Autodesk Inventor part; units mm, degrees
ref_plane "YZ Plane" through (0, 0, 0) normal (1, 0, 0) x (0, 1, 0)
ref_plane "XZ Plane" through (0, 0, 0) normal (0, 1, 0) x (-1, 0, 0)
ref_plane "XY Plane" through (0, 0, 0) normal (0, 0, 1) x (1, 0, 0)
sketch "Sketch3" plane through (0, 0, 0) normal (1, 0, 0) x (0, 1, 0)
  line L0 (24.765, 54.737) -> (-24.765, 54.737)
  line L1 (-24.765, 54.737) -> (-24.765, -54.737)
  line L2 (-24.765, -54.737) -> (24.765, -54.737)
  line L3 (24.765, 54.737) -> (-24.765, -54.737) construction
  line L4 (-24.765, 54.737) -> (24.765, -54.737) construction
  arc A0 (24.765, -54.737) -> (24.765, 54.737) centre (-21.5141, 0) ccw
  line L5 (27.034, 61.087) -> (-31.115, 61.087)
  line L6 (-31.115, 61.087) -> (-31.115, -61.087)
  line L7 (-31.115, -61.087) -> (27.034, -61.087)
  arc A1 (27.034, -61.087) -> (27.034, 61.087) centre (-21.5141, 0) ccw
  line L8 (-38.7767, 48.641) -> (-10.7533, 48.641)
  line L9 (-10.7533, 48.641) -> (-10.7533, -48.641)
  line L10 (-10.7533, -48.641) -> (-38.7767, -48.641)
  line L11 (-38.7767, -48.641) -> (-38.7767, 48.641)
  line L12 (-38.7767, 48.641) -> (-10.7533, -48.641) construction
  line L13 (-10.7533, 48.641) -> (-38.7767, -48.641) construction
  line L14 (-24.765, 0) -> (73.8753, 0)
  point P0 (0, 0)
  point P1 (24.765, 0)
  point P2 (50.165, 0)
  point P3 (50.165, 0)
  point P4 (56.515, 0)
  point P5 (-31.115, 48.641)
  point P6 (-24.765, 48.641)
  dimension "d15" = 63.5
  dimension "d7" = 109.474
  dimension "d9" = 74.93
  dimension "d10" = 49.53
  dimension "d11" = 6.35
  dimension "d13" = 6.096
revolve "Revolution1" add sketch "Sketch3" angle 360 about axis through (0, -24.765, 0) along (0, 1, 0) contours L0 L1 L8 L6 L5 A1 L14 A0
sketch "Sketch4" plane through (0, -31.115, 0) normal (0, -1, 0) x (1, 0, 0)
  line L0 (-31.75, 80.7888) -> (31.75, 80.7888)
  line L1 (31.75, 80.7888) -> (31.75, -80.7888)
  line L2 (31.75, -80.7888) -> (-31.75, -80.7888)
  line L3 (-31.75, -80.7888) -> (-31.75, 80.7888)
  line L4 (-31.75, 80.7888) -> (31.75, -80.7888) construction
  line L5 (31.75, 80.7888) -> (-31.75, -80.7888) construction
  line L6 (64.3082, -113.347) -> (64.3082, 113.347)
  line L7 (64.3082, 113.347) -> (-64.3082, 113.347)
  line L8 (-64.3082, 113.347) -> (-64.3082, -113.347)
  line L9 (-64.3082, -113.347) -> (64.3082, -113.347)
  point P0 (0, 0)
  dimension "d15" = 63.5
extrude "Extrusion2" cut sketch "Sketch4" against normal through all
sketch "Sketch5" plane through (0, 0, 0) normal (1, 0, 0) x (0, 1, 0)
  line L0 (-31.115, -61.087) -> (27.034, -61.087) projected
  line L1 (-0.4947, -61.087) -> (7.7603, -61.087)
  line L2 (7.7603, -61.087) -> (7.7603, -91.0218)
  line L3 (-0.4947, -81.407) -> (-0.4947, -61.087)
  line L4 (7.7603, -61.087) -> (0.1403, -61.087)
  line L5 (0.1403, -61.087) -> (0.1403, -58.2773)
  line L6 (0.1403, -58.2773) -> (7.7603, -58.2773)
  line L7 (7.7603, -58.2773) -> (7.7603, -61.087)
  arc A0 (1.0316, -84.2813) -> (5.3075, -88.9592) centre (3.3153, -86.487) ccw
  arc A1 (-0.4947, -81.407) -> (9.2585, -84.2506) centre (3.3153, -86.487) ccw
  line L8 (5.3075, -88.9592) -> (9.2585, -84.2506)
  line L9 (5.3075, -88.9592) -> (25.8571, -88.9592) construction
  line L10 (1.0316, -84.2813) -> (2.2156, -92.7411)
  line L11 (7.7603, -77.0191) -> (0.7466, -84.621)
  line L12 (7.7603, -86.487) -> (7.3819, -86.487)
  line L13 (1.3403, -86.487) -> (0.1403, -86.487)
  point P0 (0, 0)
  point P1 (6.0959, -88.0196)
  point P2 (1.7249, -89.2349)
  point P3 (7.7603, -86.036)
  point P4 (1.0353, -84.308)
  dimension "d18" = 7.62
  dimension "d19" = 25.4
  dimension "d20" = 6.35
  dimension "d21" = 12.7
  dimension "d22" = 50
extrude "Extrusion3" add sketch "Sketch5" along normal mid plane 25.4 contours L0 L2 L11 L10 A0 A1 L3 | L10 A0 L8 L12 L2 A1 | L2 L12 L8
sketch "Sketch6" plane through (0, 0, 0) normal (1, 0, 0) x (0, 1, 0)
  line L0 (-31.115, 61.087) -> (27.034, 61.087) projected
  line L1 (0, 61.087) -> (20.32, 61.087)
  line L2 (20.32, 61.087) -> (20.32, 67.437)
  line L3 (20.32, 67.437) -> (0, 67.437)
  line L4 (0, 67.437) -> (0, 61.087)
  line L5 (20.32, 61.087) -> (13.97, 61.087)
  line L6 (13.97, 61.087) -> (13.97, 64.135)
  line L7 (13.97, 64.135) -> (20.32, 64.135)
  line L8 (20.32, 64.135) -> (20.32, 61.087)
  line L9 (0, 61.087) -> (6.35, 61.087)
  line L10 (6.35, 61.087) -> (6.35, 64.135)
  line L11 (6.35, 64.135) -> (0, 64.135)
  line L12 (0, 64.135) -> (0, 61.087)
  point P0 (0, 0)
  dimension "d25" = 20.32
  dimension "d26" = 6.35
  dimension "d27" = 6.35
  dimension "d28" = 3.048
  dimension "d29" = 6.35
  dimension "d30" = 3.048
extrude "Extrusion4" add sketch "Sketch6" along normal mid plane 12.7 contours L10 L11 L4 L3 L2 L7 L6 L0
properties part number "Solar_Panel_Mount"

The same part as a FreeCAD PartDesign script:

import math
import FreeCAD as App
import Part
import Sketcher
from FreeCAD import Vector
Q = App.Units.Quantity

doc = App.newDocument("Part")
params = doc.addObject("Spreadsheet::Sheet", "Params")
for row, (alias, value) in enumerate([
    ("sketch1_width", "1.95 in"),
    ("sketch1_width2", "0.25 in"),
    ("sketch1_height", "0.24 in"),
    ("sketch1_radius", "3.072 in"),
    ("revolution_angle", "360 deg"),
    ("sketch2_width", "2.5 in"),
    ("sketch3_radius", "0.25 in"),
    ("sketch3_radius2", "0.125 in"),
    ("sketch3_height", "0.8 in"),
    ("sketch3_width", "0.325 in"),
    ("pad1_length", "1 in"),
    ("sketch4_width", "0.8 in"),
    ("sketch4_width2", "0.25 in"),
    ("sketch4_height", "0.12 in"),
    ("pad2_length", "0.5 in"),
], start=1):
    params.set(f"A{row}", alias)
    params.set(f"B{row}", "=" + value)
    params.setAlias(f"B{row}", alias)

body = doc.addObject("PartDesign::Body", "Body")
body.AllowCompound = True

# Sketch on YZ plane
sketch1 = body.newObject("Sketcher::SketchObject", "Sketch")
sketch1.AttachmentSupport = (doc.getObject("YZ_Plane"), [""])
sketch1.MapMode = "FlatFace"
sketch1.addGeometry([
    Part.LineSegment(Vector(-25, 55, 0), Vector(25, 55, 0)),  # 0
    Part.ArcOfCircle(Part.Circle(Vector(-22, 0, 0), Vector(0, 0, 1), 72), math.radians(0), math.radians(50)),  # 1
    Part.LineSegment(Vector(50, 0, 0), Vector(57, 0, 0)),  # 2
    Part.ArcOfCircle(Part.Circle(Vector(-22, 0, 0), Vector(0, 0, 1), 78), math.radians(0), math.radians(52)),  # 3
    Part.LineSegment(Vector(27, 61, 0), Vector(-31, 61, 0)),  # 4
    Part.LineSegment(Vector(-31, 61, 0), Vector(-31, 49, 0)),  # 5
    Part.LineSegment(Vector(-31, 49, 0), Vector(-25, 49, 0)),  # 6
    Part.LineSegment(Vector(-25, 49, 0), Vector(-25, 55, 0)),  # 7
], False)
sketch1.addConstraint([
    Sketcher.Constraint("Coincident", 0, 2, 1, 2),
    Sketcher.Constraint("Coincident", 1, 1, 2, 1),
    Sketcher.Constraint("Coincident", 2, 2, 3, 1),
    Sketcher.Constraint("Coincident", 3, 2, 4, 1),
    Sketcher.Constraint("Coincident", 4, 2, 5, 1),
    Sketcher.Constraint("Coincident", 5, 2, 6, 1),
    Sketcher.Constraint("Coincident", 6, 2, 7, 1),
    Sketcher.Constraint("Coincident", 7, 2, 0, 1),
    Sketcher.Constraint("Horizontal", 0),
    Sketcher.Constraint("Horizontal", 2),
    Sketcher.Constraint("Horizontal", 4),
    Sketcher.Constraint("Vertical", 5),
    Sketcher.Constraint("Horizontal", 6),
    Sketcher.Constraint("Vertical", 7),
    Sketcher.Constraint("Coincident", 3, 3, 1, 3),
    Sketcher.Constraint("PointOnObject", 1, 3, -1),
    Sketcher.Constraint("PointOnObject", 1, 1, -1),
    Sketcher.Constraint("Equal", 2, 6),
    Sketcher.Constraint("DistanceX", 0, 1, 0, 2, Q("1.95 in")),
    Sketcher.Constraint("DistanceX", 2, 1, 2, 2, Q("0.25 in")),
    Sketcher.Constraint("DistanceY", 7, 1, 7, 2, Q("0.24 in")),
    Sketcher.Constraint("DistanceY", 0, 2, 3, 2, Q("0.25 in")),
    Sketcher.Constraint("Radius", 3, Q("3.072 in")),
    Sketcher.Constraint("DistanceX", 0, 2, 1, 1, Q("1 in")),
    Sketcher.Constraint("DistanceX", 1, 3, -1, 1, Q("0.847 in")),
])
sketch1.setExpression("Constraints[18]", "Params.sketch1_width")
sketch1.setExpression("Constraints[19]", "Params.sketch1_width2")
sketch1.setExpression("Constraints[20]", "Params.sketch1_height")
sketch1.setExpression("Constraints[22]", "Params.sketch1_radius")
revolution = body.newObject("PartDesign::Revolution", "Revolution")
revolution.Profile = sketch1
revolution.ReferenceAxis = (sketch1, ["H_Axis"])
revolution.setExpression("Angle", "Params.revolution_angle")

# Sketch on XZ plane
sketch2 = body.newObject("Sketcher::SketchObject", "Sketch001")
sketch2.AttachmentSupport = (doc.getObject("XZ_Plane"), [""])
sketch2.MapMode = "FlatFace"
sketch2.AttachmentOffset = App.Placement(Vector(0, 0, 1.225 * 25.4), App.Rotation())
sketch2.addGeometry([
    Part.LineSegment(Vector(-64, -113, 0), Vector(64, -113, 0)),  # 0
    Part.LineSegment(Vector(64, -113, 0), Vector(64, 113, 0)),  # 1
    Part.LineSegment(Vector(64, 113, 0), Vector(-64, 113, 0)),  # 2
    Part.LineSegment(Vector(-64, 113, 0), Vector(-64, -113, 0)),  # 3
    Part.LineSegment(Vector(-32, -81, 0), Vector(-32, 81, 0)),  # 4
    Part.LineSegment(Vector(-32, 81, 0), Vector(32, 81, 0)),  # 5
    Part.LineSegment(Vector(32, 81, 0), Vector(32, -81, 0)),  # 6
    Part.LineSegment(Vector(32, -81, 0), Vector(-32, -81, 0)),  # 7
], False)
sketch2.addConstraint([
    Sketcher.Constraint("Coincident", 0, 2, 1, 1),
    Sketcher.Constraint("Coincident", 1, 2, 2, 1),
    Sketcher.Constraint("Coincident", 2, 2, 3, 1),
    Sketcher.Constraint("Coincident", 3, 2, 0, 1),
    Sketcher.Constraint("Coincident", 4, 2, 5, 1),
    Sketcher.Constraint("Coincident", 5, 2, 6, 1),
    Sketcher.Constraint("Coincident", 6, 2, 7, 1),
    Sketcher.Constraint("Coincident", 7, 2, 4, 1),
    Sketcher.Constraint("Horizontal", 0),
    Sketcher.Constraint("Vertical", 1),
    Sketcher.Constraint("Horizontal", 2),
    Sketcher.Constraint("Vertical", 3),
    Sketcher.Constraint("Vertical", 4),
    Sketcher.Constraint("Horizontal", 5),
    Sketcher.Constraint("Vertical", 6),
    Sketcher.Constraint("Horizontal", 7),
    Sketcher.Constraint("Symmetric", 0, 2, 2, 2, -1, 1),
    Sketcher.Constraint("Symmetric", 4, 2, 6, 2, -1, 1),
    Sketcher.Constraint("DistanceX", 5, 1, 5, 2, Q("2.5 in")),
    Sketcher.Constraint("DistanceX", 0, 1, 0, 2, Q("128.6164 mm")),
    Sketcher.Constraint("DistanceY", 1, 1, 1, 2, Q("226.694 mm")),
    Sketcher.Constraint("DistanceY", 4, 1, 4, 2, Q("161.5776 mm")),
])
sketch2.setExpression("Constraints[18]", "Params.sketch2_width")
pocket1 = body.newObject("PartDesign::Pocket", "Pocket")
pocket1.Profile = sketch2
pocket1.Type = "ThroughAll"

# Sketch on YZ plane
sketch3 = body.newObject("Sketcher::SketchObject", "Sketch002")
sketch3.AttachmentSupport = (doc.getObject("YZ_Plane"), [""])
sketch3.MapMode = "FlatFace"
sketch3.addGeometry([
    Part.LineSegment(Vector(-0.495, -61.087, 0), Vector(-0.495, -81.407, 0)),  # 0
    Part.ArcOfCircle(Part.Circle(Vector(3.315, -86.487, 0), Vector(0, 0, 1), 6.35), math.radians(127), math.radians(314)),  # 1
    Part.LineSegment(Vector(7.76, -91.022, 0), Vector(7.76, -86.036, 0)),  # 2
    Part.LineSegment(Vector(7.76, -86.036, 0), Vector(5.308, -88.959, 0)),  # 3
    Part.ArcOfCircle(Part.Circle(Vector(3.315, -86.487, 0), Vector(0, 0, 1), 3.175), math.radians(136), math.radians(309)),  # 4
    Part.LineSegment(Vector(1.032, -84.281, 0), Vector(1.035, -84.308, 0)),  # 5
    Part.LineSegment(Vector(1.035, -84.308, 0), Vector(7.76, -77.019, 0)),  # 6
    Part.LineSegment(Vector(7.76, -77.019, 0), Vector(7.76, -61.087, 0)),  # 7
    Part.LineSegment(Vector(7.76, -61.087, 0), Vector(-0.495, -61.087, 0)),  # 8
], False)
sketch3.addConstraint([
    Sketcher.Constraint("Coincident", 0, 2, 1, 1),
    Sketcher.Constraint("Coincident", 1, 2, 2, 1),
    Sketcher.Constraint("Coincident", 2, 2, 3, 1),
    Sketcher.Constraint("Coincident", 3, 2, 4, 2),
    Sketcher.Constraint("Coincident", 4, 1, 5, 1),
    Sketcher.Constraint("Coincident", 5, 2, 6, 1),
    Sketcher.Constraint("Coincident", 6, 2, 7, 1),
    Sketcher.Constraint("Coincident", 7, 2, 8, 1),
    Sketcher.Constraint("Coincident", 8, 2, 0, 1),
    Sketcher.Constraint("Vertical", 0),
    Sketcher.Constraint("Vertical", 2),
    Sketcher.Constraint("Vertical", 7),
    Sketcher.Constraint("Horizontal", 8),
    Sketcher.Constraint("Coincident", 4, 3, 1, 3),
    Sketcher.Constraint("Vertical", 2, 2, 6, 2),
    Sketcher.Constraint("Radius", 1, Q("0.25 in")),
    Sketcher.Constraint("Radius", 4, Q("0.125 in")),
    Sketcher.Constraint("DistanceY", 0, 2, 0, 1, Q("0.8 in")),
    Sketcher.Constraint("Angle", 3, Q("-130 deg")),
    Sketcher.Constraint("DistanceY", 1, 3, 0, 2, Q("0.2 in")),
    Sketcher.Constraint("DistanceX", 8, 2, 8, 1, Q("0.325 in")),
    Sketcher.Constraint("DistanceY", 2, 1, 2, 2, Q("0.1963 in")),
    Sketcher.Constraint("DistanceY", 1, 3, -1, 1, Q("3.405 in")),
    Sketcher.Constraint("DistanceY", 2, 2, 6, 2, Q("0.355 in")),
    Sketcher.Constraint("DistanceX", 4, 1, 1, 3, Q("0.0899 in")),
    Sketcher.Constraint("DistanceX", 5, 2, 3, 2, Q("0.1682 in")),
    Sketcher.Constraint("Distance", 5, Q("0.027 mm")),
    Sketcher.Constraint("DistanceX", -1, 1, 1, 3, Q("3.3153 mm")),
])
sketch3.setExpression("Constraints[15]", "Params.sketch3_radius")
sketch3.setExpression("Constraints[16]", "Params.sketch3_radius2")
sketch3.setExpression("Constraints[17]", "Params.sketch3_height")
sketch3.setExpression("Constraints[20]", "Params.sketch3_width")
pad1 = body.newObject("PartDesign::Pad", "Pad")
pad1.Profile = sketch3
pad1.setExpression("Length", "Params.pad1_length")
pad1.Midplane = True

# Sketch on YZ plane
sketch4 = body.newObject("Sketcher::SketchObject", "Sketch003")
sketch4.AttachmentSupport = (doc.getObject("YZ_Plane"), [""])
sketch4.MapMode = "FlatFace"
sketch4.addGeometry([
    Part.LineSegment(Vector(6.3, 64.1, 0), Vector(6.3, 61.1, 0)),  # 0
    Part.LineSegment(Vector(6.3, 61.1, 0), Vector(14, 61.1, 0)),  # 1
    Part.LineSegment(Vector(14, 61.1, 0), Vector(14, 64.1, 0)),  # 2
    Part.LineSegment(Vector(14, 64.1, 0), Vector(20.3, 64.1, 0)),  # 3
    Part.LineSegment(Vector(20.3, 64.1, 0), Vector(20.3, 67.4, 0)),  # 4
    Part.LineSegment(Vector(20.3, 67.4, 0), Vector(0, 67.4, 0)),  # 5
    Part.LineSegment(Vector(0, 67.4, 0), Vector(0, 64.1, 0)),  # 6
    Part.LineSegment(Vector(0, 64.1, 0), Vector(6.3, 64.1, 0)),  # 7
], False)
sketch4.addConstraint([
    Sketcher.Constraint("Coincident", 0, 2, 1, 1),
    Sketcher.Constraint("Coincident", 1, 2, 2, 1),
    Sketcher.Constraint("Coincident", 2, 2, 3, 1),
    Sketcher.Constraint("Coincident", 3, 2, 4, 1),
    Sketcher.Constraint("Coincident", 4, 2, 5, 1),
    Sketcher.Constraint("Coincident", 5, 2, 6, 1),
    Sketcher.Constraint("Coincident", 6, 2, 7, 1),
    Sketcher.Constraint("Coincident", 7, 2, 0, 1),
    Sketcher.Constraint("Vertical", 0),
    Sketcher.Constraint("Horizontal", 1),
    Sketcher.Constraint("Vertical", 2),
    Sketcher.Constraint("Horizontal", 3),
    Sketcher.Constraint("Vertical", 4),
    Sketcher.Constraint("Horizontal", 5),
    Sketcher.Constraint("Vertical", 6),
    Sketcher.Constraint("Horizontal", 7),
    Sketcher.Constraint("PointOnObject", 5, 2, -2),
    Sketcher.Constraint("Horizontal", 3, 2, 6, 2),
    Sketcher.Constraint("Equal", 3, 7),
    Sketcher.Constraint("DistanceX", 5, 2, 5, 1, Q("0.8 in")),
    Sketcher.Constraint("DistanceX", 3, 1, 3, 2, Q("0.25 in")),
    Sketcher.Constraint("DistanceY", 0, 2, 0, 1, Q("0.12 in")),
    Sketcher.Constraint("DistanceY", 1, 2, 4, 2, Q("0.25 in")),
    Sketcher.Constraint("DistanceY", -1, 1, 0, 2, Q("2.405 in")),
])
sketch4.setExpression("Constraints[19]", "Params.sketch4_width")
sketch4.setExpression("Constraints[20]", "Params.sketch4_width2")
sketch4.setExpression("Constraints[21]", "Params.sketch4_height")
pad2 = body.newObject("PartDesign::Pad", "Pad001")
pad2.Profile = sketch4
pad2.setExpression("Length", "Params.pad2_length")
pad2.Midplane = True

doc.recompute()
